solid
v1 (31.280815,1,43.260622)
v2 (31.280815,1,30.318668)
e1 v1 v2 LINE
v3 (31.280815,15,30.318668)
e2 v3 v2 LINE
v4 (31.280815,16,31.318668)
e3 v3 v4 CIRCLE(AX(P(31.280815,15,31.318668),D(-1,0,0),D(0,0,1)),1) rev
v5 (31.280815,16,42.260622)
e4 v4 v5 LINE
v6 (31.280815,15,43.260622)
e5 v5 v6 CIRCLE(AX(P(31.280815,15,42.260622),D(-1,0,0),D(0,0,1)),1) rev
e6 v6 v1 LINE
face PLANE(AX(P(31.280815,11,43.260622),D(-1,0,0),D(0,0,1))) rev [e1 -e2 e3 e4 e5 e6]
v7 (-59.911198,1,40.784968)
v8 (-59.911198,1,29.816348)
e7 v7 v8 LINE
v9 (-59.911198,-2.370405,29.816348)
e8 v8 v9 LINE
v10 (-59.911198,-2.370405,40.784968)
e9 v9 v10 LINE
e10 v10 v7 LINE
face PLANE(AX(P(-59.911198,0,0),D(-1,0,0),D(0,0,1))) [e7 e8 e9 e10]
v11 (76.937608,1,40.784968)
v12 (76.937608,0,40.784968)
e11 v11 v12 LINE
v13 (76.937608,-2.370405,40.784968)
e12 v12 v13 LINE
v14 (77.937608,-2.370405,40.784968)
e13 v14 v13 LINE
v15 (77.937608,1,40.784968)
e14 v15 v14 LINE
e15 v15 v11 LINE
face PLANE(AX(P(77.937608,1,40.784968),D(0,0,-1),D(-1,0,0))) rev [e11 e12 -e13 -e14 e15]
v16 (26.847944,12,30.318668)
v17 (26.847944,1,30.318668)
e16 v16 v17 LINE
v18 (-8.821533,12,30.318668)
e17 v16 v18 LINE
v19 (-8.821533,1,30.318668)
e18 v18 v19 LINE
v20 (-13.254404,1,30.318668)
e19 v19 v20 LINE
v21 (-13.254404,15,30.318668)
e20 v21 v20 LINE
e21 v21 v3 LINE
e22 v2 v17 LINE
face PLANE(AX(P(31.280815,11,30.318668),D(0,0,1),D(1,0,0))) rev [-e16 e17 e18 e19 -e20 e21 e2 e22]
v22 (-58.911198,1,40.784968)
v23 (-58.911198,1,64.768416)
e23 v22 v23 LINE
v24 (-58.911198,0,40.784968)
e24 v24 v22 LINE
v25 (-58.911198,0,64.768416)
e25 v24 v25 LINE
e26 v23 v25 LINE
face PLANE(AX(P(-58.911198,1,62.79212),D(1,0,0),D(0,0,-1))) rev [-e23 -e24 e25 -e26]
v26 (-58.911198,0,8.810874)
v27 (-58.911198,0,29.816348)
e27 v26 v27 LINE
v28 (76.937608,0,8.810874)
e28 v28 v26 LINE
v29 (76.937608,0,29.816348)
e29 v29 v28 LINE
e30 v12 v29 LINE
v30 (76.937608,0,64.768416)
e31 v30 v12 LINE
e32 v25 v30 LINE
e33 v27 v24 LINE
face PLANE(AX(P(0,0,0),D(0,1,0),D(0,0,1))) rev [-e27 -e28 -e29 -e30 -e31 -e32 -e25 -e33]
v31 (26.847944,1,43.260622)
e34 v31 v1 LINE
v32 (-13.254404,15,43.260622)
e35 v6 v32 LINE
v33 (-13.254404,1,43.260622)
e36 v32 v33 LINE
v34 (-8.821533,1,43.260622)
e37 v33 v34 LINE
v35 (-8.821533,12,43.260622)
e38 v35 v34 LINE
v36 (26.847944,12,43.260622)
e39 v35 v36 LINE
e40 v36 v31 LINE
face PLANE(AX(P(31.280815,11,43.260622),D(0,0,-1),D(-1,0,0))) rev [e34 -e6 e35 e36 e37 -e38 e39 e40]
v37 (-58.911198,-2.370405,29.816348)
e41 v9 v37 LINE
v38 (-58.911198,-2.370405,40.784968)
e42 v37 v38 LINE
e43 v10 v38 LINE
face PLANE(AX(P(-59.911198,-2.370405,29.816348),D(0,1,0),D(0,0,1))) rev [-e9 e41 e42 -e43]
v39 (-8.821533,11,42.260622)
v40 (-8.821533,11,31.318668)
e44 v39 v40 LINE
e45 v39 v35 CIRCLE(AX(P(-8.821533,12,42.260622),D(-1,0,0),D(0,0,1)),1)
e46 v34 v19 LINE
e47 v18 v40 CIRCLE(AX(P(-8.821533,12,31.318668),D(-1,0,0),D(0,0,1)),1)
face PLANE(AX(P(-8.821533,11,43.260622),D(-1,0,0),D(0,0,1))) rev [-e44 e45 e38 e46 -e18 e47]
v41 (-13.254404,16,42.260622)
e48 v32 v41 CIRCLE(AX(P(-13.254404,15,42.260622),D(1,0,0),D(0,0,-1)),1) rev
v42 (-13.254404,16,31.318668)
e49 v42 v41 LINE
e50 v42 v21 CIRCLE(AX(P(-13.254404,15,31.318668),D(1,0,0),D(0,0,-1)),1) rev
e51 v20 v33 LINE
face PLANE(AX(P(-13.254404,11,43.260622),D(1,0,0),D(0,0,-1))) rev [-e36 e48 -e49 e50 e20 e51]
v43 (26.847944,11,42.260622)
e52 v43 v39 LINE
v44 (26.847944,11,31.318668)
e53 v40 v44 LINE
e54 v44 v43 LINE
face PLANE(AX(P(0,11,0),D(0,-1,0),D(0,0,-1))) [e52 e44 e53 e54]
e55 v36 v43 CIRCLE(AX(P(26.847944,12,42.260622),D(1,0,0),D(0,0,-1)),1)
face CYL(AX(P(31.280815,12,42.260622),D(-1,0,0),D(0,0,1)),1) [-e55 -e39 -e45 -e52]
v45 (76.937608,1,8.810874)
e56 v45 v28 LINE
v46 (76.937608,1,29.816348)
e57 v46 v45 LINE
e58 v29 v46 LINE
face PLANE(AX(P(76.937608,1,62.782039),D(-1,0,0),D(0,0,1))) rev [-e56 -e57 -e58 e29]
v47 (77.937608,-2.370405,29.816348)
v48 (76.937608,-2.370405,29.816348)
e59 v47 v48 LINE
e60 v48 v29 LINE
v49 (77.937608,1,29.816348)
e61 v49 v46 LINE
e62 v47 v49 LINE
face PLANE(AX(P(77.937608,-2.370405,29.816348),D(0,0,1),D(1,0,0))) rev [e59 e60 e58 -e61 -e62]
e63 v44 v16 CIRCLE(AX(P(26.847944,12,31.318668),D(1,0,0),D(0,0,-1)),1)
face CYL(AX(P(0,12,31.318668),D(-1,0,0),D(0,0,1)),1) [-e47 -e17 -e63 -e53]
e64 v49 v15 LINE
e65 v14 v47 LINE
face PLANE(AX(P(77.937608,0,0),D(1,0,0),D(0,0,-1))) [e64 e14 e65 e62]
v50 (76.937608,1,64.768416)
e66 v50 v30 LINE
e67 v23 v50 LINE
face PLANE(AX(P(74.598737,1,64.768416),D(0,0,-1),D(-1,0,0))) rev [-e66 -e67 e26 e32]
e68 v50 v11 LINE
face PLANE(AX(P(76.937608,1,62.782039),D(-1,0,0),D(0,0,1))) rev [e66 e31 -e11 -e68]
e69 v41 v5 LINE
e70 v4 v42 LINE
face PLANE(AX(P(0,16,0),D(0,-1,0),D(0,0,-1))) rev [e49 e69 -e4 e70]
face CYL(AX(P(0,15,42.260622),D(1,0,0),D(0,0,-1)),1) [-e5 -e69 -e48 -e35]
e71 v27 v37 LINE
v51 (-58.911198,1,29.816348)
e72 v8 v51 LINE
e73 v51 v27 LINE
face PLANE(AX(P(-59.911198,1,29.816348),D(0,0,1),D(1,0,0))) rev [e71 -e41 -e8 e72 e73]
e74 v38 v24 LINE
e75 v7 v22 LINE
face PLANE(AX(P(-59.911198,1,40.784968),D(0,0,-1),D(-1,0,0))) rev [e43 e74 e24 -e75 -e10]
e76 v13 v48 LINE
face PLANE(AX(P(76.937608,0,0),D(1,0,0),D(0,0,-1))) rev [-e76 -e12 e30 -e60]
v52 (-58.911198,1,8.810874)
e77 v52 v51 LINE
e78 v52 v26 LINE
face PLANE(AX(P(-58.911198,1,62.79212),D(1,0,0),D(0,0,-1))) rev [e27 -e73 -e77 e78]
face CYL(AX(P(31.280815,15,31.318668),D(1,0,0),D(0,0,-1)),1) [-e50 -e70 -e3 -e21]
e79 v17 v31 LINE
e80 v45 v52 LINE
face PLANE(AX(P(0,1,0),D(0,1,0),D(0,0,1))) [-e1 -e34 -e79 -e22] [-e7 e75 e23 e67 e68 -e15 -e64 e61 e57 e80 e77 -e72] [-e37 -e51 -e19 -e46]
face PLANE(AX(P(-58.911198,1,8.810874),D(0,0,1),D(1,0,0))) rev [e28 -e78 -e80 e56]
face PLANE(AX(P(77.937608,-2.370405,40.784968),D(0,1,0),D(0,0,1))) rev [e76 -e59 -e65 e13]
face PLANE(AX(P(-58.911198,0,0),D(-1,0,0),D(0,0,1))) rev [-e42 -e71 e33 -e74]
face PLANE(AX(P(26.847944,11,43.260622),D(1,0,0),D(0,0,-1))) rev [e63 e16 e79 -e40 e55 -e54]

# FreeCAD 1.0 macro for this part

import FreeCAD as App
import Part
import Sketcher

V = App.Vector


def edges_at(feature, points):
    """Names of the edges that pass closest to the given points."""
    edges = feature.Shape.Edges
    near = lambda p: min(range(len(edges)), key=lambda i: edges[i].distToShape(Part.Vertex(*p))[0])
    return sorted({f"Edge{near(p) + 1}" for p in points})


def add_polygon(sketch, points):
    """Adds a closed chain of lines whose ends are joined by coincident constraints."""
    first, n = sketch.GeometryCount, len(points)
    for a, b in zip(points, points[1:] + points[:1]):
        sketch.addGeometry(Part.LineSegment(App.Vector(*a, 0), App.Vector(*b, 0)), False)
    for i in range(n):
        sketch.addConstraint(Sketcher.Constraint("Coincident", first + i, 2, first + (i + 1) % n, 1))

doc = App.newDocument("Part")
body = doc.addObject("PartDesign::Body", "Body")

sketch1 = doc.addObject("Sketcher::SketchObject", "Sketch")
body.addObject(sketch1)
sketch1.AttachmentSupport = (doc.XZ_Plane, [""])
sketch1.MapMode = "FlatFace"
add_polygon(sketch1, [(77, 9), (-59, 9), (-59, 65), (77, 65)])
sketch1.addConstraint([
    Sketcher.Constraint("Horizontal", 0),
    Sketcher.Constraint("Vertical", 1),
    Sketcher.Constraint("Horizontal", 2),
    Sketcher.Constraint("Vertical", 3),
    Sketcher.Constraint("DistanceY", 1, 1, 1, 2, 55.957542),
    Sketcher.Constraint("DistanceX", 0, 2, 0, 1, 135.848806),
    Sketcher.Constraint("DistanceX", -1, 1, 2, 2, 76.937608),
    Sketcher.Constraint("DistanceY", -1, 1, 0, 2, 8.810874),
])
pad1 = doc.addObject("PartDesign::Pad", "Pad")
body.addObject(pad1)
pad1.Profile = sketch1
pad1.Length = 1
pad1.Reversed = True

sketch2 = doc.addObject("Sketcher::SketchObject", "Sketch001")
body.addObject(sketch2)
sketch2.AttachmentSupport = (doc.XZ_Plane, [""])
sketch2.MapMode = "FlatFace"
sketch2.AttachmentOffset = App.Placement(V(0, 0, -1), App.Rotation())
add_polygon(sketch2, [(-13.3, 30.3), (-13.3, 43.3), (-8.8, 43.3), (-8.8, 30.3)])
add_polygon(sketch2, [(26.8, 30.3), (26.8, 43.3), (31.3, 43.3), (31.3, 30.3)])
sketch2.addConstraint([
    Sketcher.Constraint("Vertical", 0),
    Sketcher.Constraint("Horizontal", 1),
    Sketcher.Constraint("Vertical", 2),
    Sketcher.Constraint("Horizontal", 3),
    Sketcher.Constraint("Vertical", 4),
    Sketcher.Constraint("Horizontal", 5),
    Sketcher.Constraint("Vertical", 6),
    Sketcher.Constraint("Horizontal", 7),
    Sketcher.Constraint("Horizontal", 1, 2, 4, 2),
    Sketcher.Constraint("Horizontal", 3, 2, 6, 2),
    Sketcher.Constraint("Equal", 3, 5),
    Sketcher.Constraint("DistanceX", 1, 1, 1, 2, 4.432871),
    Sketcher.Constraint("DistanceY", 0, 1, 0, 2, 12.941954),
    Sketcher.Constraint("DistanceY", -1, 1, 0, 2, 43.260622),
    Sketcher.Constraint("DistanceX", 0, 2, 4, 2, 40.102348),
    Sketcher.Constraint("DistanceX", 0, 2, -1, 1, 13.254404),
])
pad2 = doc.addObject("PartDesign::Pad", "Pad001")
body.addObject(pad2)
pad2.Profile = sketch2
pad2.Length = 10
pad2.Reversed = True

sketch3 = doc.addObject("Sketcher::SketchObject", "Sketch002")
body.addObject(sketch3)
sketch3.AttachmentSupport = (doc.XZ_Plane, [""])
sketch3.MapMode = "FlatFace"
sketch3.AttachmentOffset = App.Placement(V(0, 0, -11), App.Rotation())
add_polygon(sketch3, [(-13, 30), (-13, 43), (31, 43), (31, 30)])
sketch3.addConstraint([
    Sketcher.Constraint("Vertical", 0),
    Sketcher.Constraint("Horizontal", 1),
    Sketcher.Constraint("Vertical", 2),
    Sketcher.Constraint("Horizontal", 3),
    Sketcher.Constraint("DistanceX", 1, 1, 1, 2, 44.535219),
    Sketcher.Constraint("DistanceY", 0, 1, 0, 2, 12.941954),
    Sketcher.Constraint("DistanceY", -1, 1, 0, 2, 43.260622),
    Sketcher.Constraint("DistanceX", 0, 2, -1, 1, 13.254404),
])
pad3 = doc.addObject("PartDesign::Pad", "Pad002")
body.addObject(pad3)
pad3.Profile = sketch3
pad3.Length = 5
pad3.Reversed = True
doc.recompute()

fillet = doc.addObject("PartDesign::Fillet", "Fillet")
body.addObject(fillet)
fillet.Base = (pad3, edges_at(pad3, [(9.013, 16, 30.319), (9.013, 16, 43.261)]))
fillet.Radius = 1
doc.recompute()

fillet2 = doc.addObject("PartDesign::Fillet", "Fillet001")
body.addObject(fillet2)
fillet2.Base = (fillet, edges_at(fillet, [(9.013, 11, 43.261), (9.013, 11, 30.319)]))
fillet2.Radius = 1

sketch4 = doc.addObject("Sketcher::SketchObject", "Sketch003")
body.addObject(sketch4)
sketch4.AttachmentSupport = (doc.YZ_Plane, [""])
sketch4.MapMode = "FlatFace"
sketch4.AttachmentOffset = App.Placement(V(0, 0, -58.911198), App.Rotation())
add_polygon(sketch4, [(1, 29.8), (-2.4, 29.8), (-2.4, 40.8), (1, 40.8)])
sketch4.addConstraint([
    Sketcher.Constraint("Horizontal", 0),
    Sketcher.Constraint("Vertical", 1),
    Sketcher.Constraint("Horizontal", 2),
    Sketcher.Constraint("Vertical", 3),
    Sketcher.Constraint("DistanceX", -1, 1, 2, 2, 1.0),
    Sketcher.Constraint("DistanceY", 1, 1, 1, 2, 10.96862),
    Sketcher.Constraint("DistanceX", 0, 2, 0, 1, 3.370405),
    Sketcher.Constraint("DistanceY", -1, 1, 0, 2, 29.816348),
])
pad4 = doc.addObject("PartDesign::Pad", "Pad003")
body.addObject(pad4)
pad4.Profile = sketch4
pad4.Length = 1
pad4.Reversed = True

sketch5 = doc.addObject("Sketcher::SketchObject", "Sketch004")
body.addObject(sketch5)
sketch5.AttachmentSupport = (doc.YZ_Plane, [""])
sketch5.MapMode = "FlatFace"
sketch5.AttachmentOffset = App.Placement(V(0, 0, 76.937608), App.Rotation())
add_polygon(sketch5, [(1, 40.8), (-2.4, 40.8), (-2.4, 29.8), (1, 29.8)])
sketch5.addConstraint([
    Sketcher.Constraint("Horizontal", 0),
    Sketcher.Constraint("Vertical", 1),
    Sketcher.Constraint("Horizontal", 2),
    Sketcher.Constraint("Vertical", 3),
    Sketcher.Constraint("DistanceX", -1, 1, 2, 2, 1.0),
    Sketcher.Constraint("DistanceY", 1, 2, 1, 1, 10.96862),
    Sketcher.Constraint("DistanceX", 0, 2, 0, 1, 3.370405),
    Sketcher.Constraint("DistanceY", -1, 1, 1, 2, 29.816348),
])
pad5 = doc.addObject("PartDesign::Pad", "Pad004")
body.addObject(pad5)
pad5.Profile = sketch5
pad5.Length = 1

doc.recompute()
